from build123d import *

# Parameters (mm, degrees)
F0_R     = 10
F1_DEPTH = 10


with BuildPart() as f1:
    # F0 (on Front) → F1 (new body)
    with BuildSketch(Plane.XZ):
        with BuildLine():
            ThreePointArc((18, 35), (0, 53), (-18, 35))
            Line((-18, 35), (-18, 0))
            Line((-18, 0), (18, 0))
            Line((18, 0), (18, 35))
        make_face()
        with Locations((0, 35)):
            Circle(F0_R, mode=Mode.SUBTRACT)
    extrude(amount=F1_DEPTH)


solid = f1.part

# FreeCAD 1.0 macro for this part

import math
import FreeCAD as App
import Part
import Sketcher
from FreeCAD import Vector

doc = App.newDocument("Part")
body = doc.addObject("PartDesign::Body", "Body")

# Sketch on XZ plane
sketch1 = body.newObject("Sketcher::SketchObject", "Sketch")
sketch1.AttachmentSupport = (doc.getObject("XZ_Plane"), [""])
sketch1.MapMode = "FlatFace"
sketch1.addGeometry([
    Part.ArcOfCircle(Part.Circle(Vector(0, 35, 0), Vector(0, 0, 1), 18), math.radians(0), math.radians(180)),  # 0
    Part.LineSegment(Vector(-18, 35, 0), Vector(-18, 0, 0)),  # 1
    Part.LineSegment(Vector(-18, 0, 0), Vector(18, 0, 0)),  # 2
    Part.LineSegment(Vector(18, 0, 0), Vector(18, 35, 0)),  # 3
    Part.Circle(Vector(0, 35, 0), Vector(0, 0, 1), 10),  # 4
], False)
sketch1.addConstraint([
    Sketcher.Constraint("Tangent", 0, 2, 1, 1),
    Sketcher.Constraint("Coincident", 1, 2, 2, 1),
    Sketcher.Constraint("Coincident", 2, 2, 3, 1),
    Sketcher.Constraint("Tangent", 3, 2, 0, 1),
    Sketcher.Constraint("Vertical", 1),
    Sketcher.Constraint("Horizontal", 2),
    Sketcher.Constraint("Vertical", 3),
    Sketcher.Constraint("Coincident", 4, 3, 0, 3),
    Sketcher.Constraint("Symmetric", 1, 2, 2, 2, -1, 1),
    Sketcher.Constraint("Diameter", 4, 20.0),
    Sketcher.Constraint("Radius", 0, 18.0),
    Sketcher.Constraint("DistanceY", 1, 2, 1, 1, 35.0),
])
pad1 = body.newObject("PartDesign::Pad", "Pad")
pad1.Profile = sketch1
pad1.Length = 10

doc.recompute()
